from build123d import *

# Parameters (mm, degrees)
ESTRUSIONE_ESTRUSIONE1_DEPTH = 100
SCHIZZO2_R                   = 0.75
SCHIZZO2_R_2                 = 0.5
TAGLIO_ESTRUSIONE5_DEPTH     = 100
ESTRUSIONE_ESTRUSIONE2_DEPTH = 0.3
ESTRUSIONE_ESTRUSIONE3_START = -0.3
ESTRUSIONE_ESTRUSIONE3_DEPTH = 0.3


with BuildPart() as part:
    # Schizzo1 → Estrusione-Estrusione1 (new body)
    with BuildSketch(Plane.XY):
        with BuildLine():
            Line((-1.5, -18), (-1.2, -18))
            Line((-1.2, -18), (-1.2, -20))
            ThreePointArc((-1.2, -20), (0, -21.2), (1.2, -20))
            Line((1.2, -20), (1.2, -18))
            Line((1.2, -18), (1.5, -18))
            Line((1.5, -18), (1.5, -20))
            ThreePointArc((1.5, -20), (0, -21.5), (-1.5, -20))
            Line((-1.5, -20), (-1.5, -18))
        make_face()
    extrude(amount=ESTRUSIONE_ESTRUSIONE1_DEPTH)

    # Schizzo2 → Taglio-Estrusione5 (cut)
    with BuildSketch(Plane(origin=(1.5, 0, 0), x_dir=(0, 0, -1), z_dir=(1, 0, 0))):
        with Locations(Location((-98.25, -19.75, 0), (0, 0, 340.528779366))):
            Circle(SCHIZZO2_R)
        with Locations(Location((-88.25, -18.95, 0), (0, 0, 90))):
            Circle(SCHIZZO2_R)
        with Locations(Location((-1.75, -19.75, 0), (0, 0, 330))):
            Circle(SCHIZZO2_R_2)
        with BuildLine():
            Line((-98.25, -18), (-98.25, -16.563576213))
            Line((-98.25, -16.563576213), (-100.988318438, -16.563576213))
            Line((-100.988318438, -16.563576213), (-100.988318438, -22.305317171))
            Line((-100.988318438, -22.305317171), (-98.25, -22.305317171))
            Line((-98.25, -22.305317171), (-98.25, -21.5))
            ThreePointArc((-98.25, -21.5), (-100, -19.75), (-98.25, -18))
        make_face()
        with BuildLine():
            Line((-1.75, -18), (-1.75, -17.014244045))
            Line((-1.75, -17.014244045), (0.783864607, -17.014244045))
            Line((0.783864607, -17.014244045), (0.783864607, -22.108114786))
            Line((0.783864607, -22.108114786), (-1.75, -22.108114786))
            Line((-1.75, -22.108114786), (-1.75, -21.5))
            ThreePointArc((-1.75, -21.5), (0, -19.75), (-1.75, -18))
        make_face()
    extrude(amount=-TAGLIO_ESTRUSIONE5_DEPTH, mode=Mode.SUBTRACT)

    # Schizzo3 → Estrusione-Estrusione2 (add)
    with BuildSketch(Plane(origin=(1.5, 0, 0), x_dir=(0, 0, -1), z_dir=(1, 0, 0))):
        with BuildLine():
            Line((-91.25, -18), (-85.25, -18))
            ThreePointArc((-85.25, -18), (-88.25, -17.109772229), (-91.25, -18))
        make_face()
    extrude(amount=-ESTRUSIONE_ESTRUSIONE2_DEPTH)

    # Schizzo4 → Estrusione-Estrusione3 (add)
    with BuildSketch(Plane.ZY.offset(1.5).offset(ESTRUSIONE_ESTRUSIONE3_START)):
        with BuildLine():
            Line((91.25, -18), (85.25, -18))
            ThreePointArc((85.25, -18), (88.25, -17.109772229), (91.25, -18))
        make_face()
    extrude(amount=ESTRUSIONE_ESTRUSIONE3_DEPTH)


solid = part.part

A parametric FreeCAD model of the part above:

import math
import FreeCAD as App
import Part
import Sketcher

V = App.Vector
Q = App.Units.Quantity

doc = App.newDocument("Part")
body = doc.addObject("PartDesign::Body", "Body")

# Sketch on XY plane
sketch1 = body.newObject("Sketcher::SketchObject", "Sketch")
sketch1.AttachmentSupport = (doc.getObject("XY_Plane"), [""])
sketch1.MapMode = "FlatFace"
sketch1.addGeometry([
    Part.LineSegment(V(-1.2, -18, 0), V(-1.5, -18, 0)),  # 0
    Part.LineSegment(V(-1.5, -18, 0), V(-1.5, -20, 0)),  # 1
    Part.ArcOfCircle(Part.Circle(V(0, -20, 0), V(0, 0, 1), 1.5), math.radians(180), math.radians(360)),  # 2
    Part.LineSegment(V(1.5, -20, 0), V(1.5, -18, 0)),  # 3
    Part.LineSegment(V(1.5, -18, 0), V(1.2, -18, 0)),  # 4
    Part.LineSegment(V(1.2, -18, 0), V(1.2, -20, 0)),  # 5
    Part.ArcOfCircle(Part.Circle(V(0, -20, 0), V(0, 0, 1), 1.2), math.radians(180), math.radians(360)),  # 6
    Part.LineSegment(V(-1.2, -20, 0), V(-1.2, -18, 0)),  # 7
], False)
sketch1.addConstraint([
    Sketcher.Constraint("Coincident", 0, 2, 1, 1),
    Sketcher.Constraint("Tangent", 1, 2, 2, 1),
    Sketcher.Constraint("Tangent", 2, 2, 3, 1),
    Sketcher.Constraint("Coincident", 3, 2, 4, 1),
    Sketcher.Constraint("Coincident", 4, 2, 5, 1),
    Sketcher.Constraint("Tangent", 5, 2, 6, 2),
    Sketcher.Constraint("Tangent", 6, 1, 7, 1),
    Sketcher.Constraint("Coincident", 7, 2, 0, 1),
    Sketcher.Constraint("Horizontal", 0),
    Sketcher.Constraint("Vertical", 1),
    Sketcher.Constraint("Vertical", 3),
    Sketcher.Constraint("Horizontal", 4),
    Sketcher.Constraint("Vertical", 5),
    Sketcher.Constraint("Vertical", 7),
    Sketcher.Constraint("Coincident", 6, 3, 2, 3),
    Sketcher.Constraint("Symmetric", 0, 2, 3, 2, -2),
    Sketcher.Constraint("Radius", 2, Q("1.5 mm")),
    Sketcher.Constraint("Radius", 6, Q("1.2 mm")),
    Sketcher.Constraint("DistanceY", 1, 2, 1, 1, Q("2 mm")),
    Sketcher.Constraint("DistanceY", 2, 3, -1, 1, Q("20 mm")),
])
pad1 = body.newObject("PartDesign::Pad", "Pad")
pad1.Profile = sketch1
pad1.Length = 100

# Sketch on YZ plane
sketch2 = body.newObject("Sketcher::SketchObject", "Sketch001")
sketch2.AttachmentSupport = (doc.getObject("YZ_Plane"), [""])
sketch2.MapMode = "FlatFace"
sketch2.AttachmentOffset = App.Placement(V(0, 0, 1.5), App.Rotation())
sketch2.addGeometry([
    Part.Circle(V(-19.8, 98.2, 0), V(0, 0, 1), 0.8),  # 0
    Part.Circle(V(-18.9, 88.2, 0), V(0, 0, 1), 0.8),  # 1
    Part.Circle(V(-19.8, 1.8, 0), V(0, 0, 1), 0.5),  # 2
    Part.LineSegment(V(-18, 98.2, 0), V(-16.6, 98.2, 0)),  # 3
    Part.LineSegment(V(-16.6, 98.2, 0), V(-16.6, 101, 0)),  # 4
    Part.LineSegment(V(-16.6, 101, 0), V(-22.3, 101, 0)),  # 5
    Part.LineSegment(V(-22.3, 101, 0), V(-22.3, 98.2, 0)),  # 6
    Part.LineSegment(V(-22.3, 98.2, 0), V(-21.5, 98.2, 0)),  # 7
    Part.ArcOfCircle(Part.Circle(V(-19.8, 98.2, 0), V(0, 0, 1), 1.8), math.radians(0), math.radians(180)),  # 8
    Part.LineSegment(V(-17, 1.8, 0), V(-18, 1.8, 0)),  # 9
    Part.ArcOfCircle(Part.Circle(V(-19.8, 1.8, 0), V(0, 0, 1), 1.8), math.radians(180), math.radians(360)),  # 10
    Part.LineSegment(V(-21.5, 1.8, 0), V(-22.1, 1.8, 0)),  # 11
    Part.LineSegment(V(-22.1, 1.8, 0), V(-22.1, -0.8, 0)),  # 12
    Part.LineSegment(V(-22.1, -0.8, 0), V(-17, -0.8, 0)),  # 13
    Part.LineSegment(V(-17, -0.8, 0), V(-17, 1.8, 0)),  # 14
], False)
sketch2.addConstraint([
    Sketcher.Constraint("Coincident", 3, 2, 4, 1),
    Sketcher.Constraint("Coincident", 4, 2, 5, 1),
    Sketcher.Constraint("Coincident", 5, 2, 6, 1),
    Sketcher.Constraint("Coincident", 6, 2, 7, 1),
    Sketcher.Constraint("Coincident", 7, 2, 8, 2),
    Sketcher.Constraint("Coincident", 8, 1, 3, 1),
    Sketcher.Constraint("Coincident", 9, 2, 10, 2),
    Sketcher.Constraint("Coincident", 10, 1, 11, 1),
    Sketcher.Constraint("Coincident", 11, 2, 12, 1),
    Sketcher.Constraint("Coincident", 12, 2, 13, 1),
    Sketcher.Constraint("Coincident", 13, 2, 14, 1),
    Sketcher.Constraint("Coincident", 14, 2, 9, 1),
    Sketcher.Constraint("Horizontal", 3),
    Sketcher.Constraint("Vertical", 4),
    Sketcher.Constraint("Horizontal", 5),
    Sketcher.Constraint("Vertical", 6),
    Sketcher.Constraint("Horizontal", 7),
    Sketcher.Constraint("Horizontal", 9),
    Sketcher.Constraint("Horizontal", 11),
    Sketcher.Constraint("Vertical", 12),
    Sketcher.Constraint("Horizontal", 13),
    Sketcher.Constraint("Vertical", 14),
    Sketcher.Constraint("Coincident", 8, 3, 0, 3),
    Sketcher.Constraint("Coincident", 10, 3, 2, 3),
    Sketcher.Constraint("Equal", 0, 1),
    Sketcher.Constraint("Equal", 8, 10),
    Sketcher.Constraint("Horizontal", 8, 3, 3, 2),
    Sketcher.Constraint("Horizontal", 3, 2, 6, 2),
    Sketcher.Constraint("Horizontal", 10, 3, 9, 2),
    Sketcher.Constraint("Horizontal", 9, 2, 10, 1),
    Sketcher.Constraint("Vertical", 0, 3, 2, 3),
    Sketcher.Constraint("Diameter", 2, Q("1 mm")),
    Sketcher.Constraint("Diameter", 0, Q("1.5 mm")),
    Sketcher.Constraint("Radius", 8, Q("1.75 mm")),
    Sketcher.Constraint("DistanceX", 8, 1, -1, 1, Q("18 mm")),
    Sketcher.Constraint("DistanceY", 1, 3, 0, 3, Q("10 mm")),
    Sketcher.Constraint("DistanceX", 0, 3, 1, 3, Q("0.8 mm")),
    Sketcher.Constraint("DistanceY", 2, 3, 1, 3, Q("86.5 mm")),
    Sketcher.Constraint("DistanceY", -1, 1, 0, 3, Q("98.25 mm")),
    Sketcher.Constraint("DistanceX", 5, 2, 5, 1, Q("5.741741 mm")),
    Sketcher.Constraint("DistanceX", 13, 1, 13, 2, Q("5.093871 mm")),
    Sketcher.Constraint("DistanceY", 4, 1, 4, 2, Q("2.738318 mm")),
    Sketcher.Constraint("DistanceX", 3, 1, 3, 2, Q("1.436424 mm")),
    Sketcher.Constraint("DistanceX", 9, 2, 9, 1, Q("0.985756 mm")),
    Sketcher.Constraint("DistanceY", 12, 2, 12, 1, Q("2.533865 mm")),
])
pocket1 = body.newObject("PartDesign::Pocket", "Pocket")
pocket1.Profile = sketch2
pocket1.Length = 100

# Sketch on YZ plane
sketch3 = body.newObject("Sketcher::SketchObject", "Sketch002")
sketch3.AttachmentSupport = (doc.getObject("YZ_Plane"), [""])
sketch3.MapMode = "FlatFace"
sketch3.AttachmentOffset = App.Placement(V(0, 0, 1.5), App.Rotation())
sketch3.addGeometry([
    Part.LineSegment(V(-18, 91, 0), V(-18, 85, 0)),
    Part.ArcOfCircle(Part.Circle(V(-23, 88, 0), V(0, 0, 1), 6), math.radians(-33), math.radians(33)),
], False)
sketch3.addConstraint([
    Sketcher.Constraint("Coincident", 0, 1, 1, 2),
    Sketcher.Constraint("Coincident", 1, 1, 0, 2),
    Sketcher.Constraint("Vertical", 0),
    Sketcher.Constraint("Radius", 1, Q("5.5 mm")),
    Sketcher.Constraint("DistanceY", 0, 2, 0, 1, Q("6 mm")),
    Sketcher.Constraint("DistanceX", 0, 1, -1, 1, Q("18 mm")),
    Sketcher.Constraint("DistanceY", -1, 1, 1, 3, Q("88.25 mm")),
])
pad2 = body.newObject("PartDesign::Pad", "Pad001")
pad2.Profile = sketch3
pad2.Length = 0.3
pad2.Reversed = True

# Sketch on YZ plane
sketch4 = body.newObject("Sketcher::SketchObject", "Sketch003")
sketch4.AttachmentSupport = (doc.getObject("YZ_Plane"), [""])
sketch4.MapMode = "FlatFace"
sketch4.AttachmentOffset = App.Placement(V(0, 0, -1.2), App.Rotation())
sketch4.addGeometry([
    Part.LineSegment(V(-18, 85, 0), V(-18, 91, 0)),
    Part.ArcOfCircle(Part.Circle(V(-23, 88, 0), V(0, 0, 1), 6), math.radians(-33), math.radians(33)),
], False)
sketch4.addConstraint([
    Sketcher.Constraint("Coincident", 0, 1, 1, 1),
    Sketcher.Constraint("Coincident", 1, 2, 0, 2),
    Sketcher.Constraint("Vertical", 0),
    Sketcher.Constraint("Radius", 1, Q("5.5 mm")),
    Sketcher.Constraint("DistanceY", 0, 1, 0, 2, Q("6 mm")),
    Sketcher.Constraint("DistanceX", 0, 1, -1, 1, Q("18 mm")),
    Sketcher.Constraint("DistanceY", -1, 1, 1, 3, Q("88.25 mm")),
])
pad3 = body.newObject("PartDesign::Pad", "Pad002")
pad3.Profile = sketch4
pad3.Length = 0.3
pad3.Reversed = True

doc.recompute()
